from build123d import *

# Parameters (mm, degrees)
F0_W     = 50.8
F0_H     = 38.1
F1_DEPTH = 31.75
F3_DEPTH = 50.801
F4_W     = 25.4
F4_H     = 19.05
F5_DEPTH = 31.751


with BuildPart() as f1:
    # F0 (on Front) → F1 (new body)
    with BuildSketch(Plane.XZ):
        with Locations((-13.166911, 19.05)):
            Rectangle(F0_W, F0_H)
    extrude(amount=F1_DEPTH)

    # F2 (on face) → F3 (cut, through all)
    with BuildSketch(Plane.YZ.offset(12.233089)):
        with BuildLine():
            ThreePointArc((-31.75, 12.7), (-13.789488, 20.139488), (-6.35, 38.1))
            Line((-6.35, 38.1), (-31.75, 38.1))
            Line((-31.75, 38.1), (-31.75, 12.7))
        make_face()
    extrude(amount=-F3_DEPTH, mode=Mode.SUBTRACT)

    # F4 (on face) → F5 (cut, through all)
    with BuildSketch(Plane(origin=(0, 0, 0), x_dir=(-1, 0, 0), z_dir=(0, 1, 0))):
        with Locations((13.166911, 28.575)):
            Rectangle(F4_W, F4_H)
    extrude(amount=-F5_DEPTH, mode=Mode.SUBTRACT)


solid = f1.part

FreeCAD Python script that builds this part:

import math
import FreeCAD as App
import Part
import Sketcher

V = App.Vector
Q = App.Units.Quantity

doc = App.newDocument("Part")
body = doc.addObject("PartDesign::Body", "Body")

sketch1 = body.newObject("Sketcher::SketchObject", "Sketch")
sketch1.AttachmentSupport = (doc.getObject("XZ_Plane"), [""])
sketch1.MapMode = "FlatFace"
sketch1.addGeometry(Part.LineSegment(V(-39, 38, 0), V(-39, 0, 0)), False)
sketch1.addGeometry(Part.LineSegment(V(-39, 0, 0), V(12, 0, 0)), False)
sketch1.addGeometry(Part.LineSegment(V(12, 0, 0), V(12, 38, 0)), False)
sketch1.addGeometry(Part.LineSegment(V(12, 38, 0), V(-39, 38, 0)), False)
sketch1.addConstraint(Sketcher.Constraint("Coincident", 0, 2, 1, 1))
sketch1.addConstraint(Sketcher.Constraint("Coincident", 1, 2, 2, 1))
sketch1.addConstraint(Sketcher.Constraint("Coincident", 2, 2, 3, 1))
sketch1.addConstraint(Sketcher.Constraint("Coincident", 3, 2, 0, 1))
sketch1.addConstraint(Sketcher.Constraint("Vertical", 0))
sketch1.addConstraint(Sketcher.Constraint("Horizontal", 1))
sketch1.addConstraint(Sketcher.Constraint("Vertical", 2))
sketch1.addConstraint(Sketcher.Constraint("Horizontal", 3))
sketch1.addConstraint(Sketcher.Constraint("PointOnObject", 0, 2, -1))
sketch1.addConstraint(Sketcher.Constraint("DistanceX", 1, 1, 1, 2, Q("2 in")))
sketch1.addConstraint(Sketcher.Constraint("DistanceY", 0, 2, 0, 1, Q("1.5 in")))
sketch1.addConstraint(Sketcher.Constraint("DistanceX", 0, 2, -1, 1, 38.566911))
pad1 = body.newObject("PartDesign::Pad", "Pad")
pad1.Profile = sketch1
pad1.Length = Q("1.25 in")

sketch2 = body.newObject("Sketcher::SketchObject", "Sketch001")
sketch2.AttachmentSupport = (doc.getObject("YZ_Plane"), [""])
sketch2.MapMode = "FlatFace"
sketch2.AttachmentOffset = App.Placement(V(0, 0, 12.233089), App.Rotation())
sketch2.addGeometry(Part.ArcOfCircle(Part.Circle(V(-32, 38, 0), V(0, 0, 1), 25), math.radians(-90), math.radians(0)), False)
sketch2.addGeometry(Part.LineSegment(V(-6, 38, 0), V(-32, 38, 0)), False)
sketch2.addGeometry(Part.LineSegment(V(-32, 38, 0), V(-32, 13, 0)), False)
sketch2.addConstraint(Sketcher.Constraint("Coincident", 0, 2, 1, 1))
sketch2.addConstraint(Sketcher.Constraint("Coincident", 1, 2, 2, 1))
sketch2.addConstraint(Sketcher.Constraint("Coincident", 2, 2, 0, 1))
sketch2.addConstraint(Sketcher.Constraint("Horizontal", 1))
sketch2.addConstraint(Sketcher.Constraint("Vertical", 2))
sketch2.addConstraint(Sketcher.Constraint("Coincident", 1, 2, 0, 3))
sketch2.addConstraint(Sketcher.Constraint("Radius", 0, Q("1 in")))
sketch2.addConstraint(Sketcher.Constraint("DistanceY", -1, 1, 0, 3, Q("1.5 in")))
sketch2.addConstraint(Sketcher.Constraint("DistanceX", 0, 3, -1, 1, Q("1.25 in")))
pocket1 = body.newObject("PartDesign::Pocket", "Pocket")
pocket1.Profile = sketch2
pocket1.Type = "ThroughAll"

sketch3 = body.newObject("Sketcher::SketchObject", "Sketch002")
sketch3.AttachmentSupport = (doc.getObject("XZ_Plane"), [""])
sketch3.MapMode = "FlatFace"
sketch3.addGeometry(Part.LineSegment(V(0, 38, 0), V(0, 19, 0)), False)
sketch3.addGeometry(Part.LineSegment(V(0, 19, 0), V(-26, 19, 0)), False)
sketch3.addGeometry(Part.LineSegment(V(-26, 19, 0), V(-26, 38, 0)), False)
sketch3.addGeometry(Part.LineSegment(V(-26, 38, 0), V(0, 38, 0)), False)
sketch3.addConstraint(Sketcher.Constraint("Coincident", 0, 2, 1, 1))
sketch3.addConstraint(Sketcher.Constraint("Coincident", 1, 2, 2, 1))
sketch3.addConstraint(Sketcher.Constraint("Coincident", 2, 2, 3, 1))
sketch3.addConstraint(Sketcher.Constraint("Coincident", 3, 2, 0, 1))
sketch3.addConstraint(Sketcher.Constraint("Vertical", 0))
sketch3.addConstraint(Sketcher.Constraint("Horizontal", 1))
sketch3.addConstraint(Sketcher.Constraint("Vertical", 2))
sketch3.addConstraint(Sketcher.Constraint("Horizontal", 3))
sketch3.addConstraint(Sketcher.Constraint("DistanceX", 1, 2, 1, 1, Q("1 in")))
sketch3.addConstraint(Sketcher.Constraint("DistanceY", 0, 2, 0, 1, Q("0.75 in")))
sketch3.addConstraint(Sketcher.Constraint("DistanceY", -1, 1, 2, 2, Q("1.5 in")))
sketch3.addConstraint(Sketcher.Constraint("DistanceX", 0, 2, -1, 1, 0.466911))
pocket2 = body.newObject("PartDesign::Pocket", "Pocket001")
pocket2.Profile = sketch3
pocket2.Type = "ThroughAll"
pocket2.Reversed = True

doc.recompute()
